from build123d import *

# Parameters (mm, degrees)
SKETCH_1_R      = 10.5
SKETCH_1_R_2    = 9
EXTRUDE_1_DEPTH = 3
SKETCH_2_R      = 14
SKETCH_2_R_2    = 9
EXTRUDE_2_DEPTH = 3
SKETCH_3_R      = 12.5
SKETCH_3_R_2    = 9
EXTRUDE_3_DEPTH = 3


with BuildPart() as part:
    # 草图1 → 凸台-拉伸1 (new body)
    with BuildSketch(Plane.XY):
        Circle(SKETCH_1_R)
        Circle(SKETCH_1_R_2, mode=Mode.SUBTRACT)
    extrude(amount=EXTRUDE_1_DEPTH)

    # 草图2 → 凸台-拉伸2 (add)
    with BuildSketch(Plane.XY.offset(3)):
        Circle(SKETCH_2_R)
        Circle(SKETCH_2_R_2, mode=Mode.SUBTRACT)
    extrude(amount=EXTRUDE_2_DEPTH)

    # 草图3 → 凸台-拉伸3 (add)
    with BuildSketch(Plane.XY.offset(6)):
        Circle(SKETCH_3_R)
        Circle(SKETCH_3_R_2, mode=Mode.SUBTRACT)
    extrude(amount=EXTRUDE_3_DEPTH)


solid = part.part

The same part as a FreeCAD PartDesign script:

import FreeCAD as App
import Part
import Sketcher

doc = App.newDocument("Part")
body = doc.addObject("PartDesign::Body", "Body")

# Sketch on XY plane
sketch1 = body.newObject("Sketcher::SketchObject", "Sketch")
sketch1.AttachmentSupport = (doc.getObject("XY_Plane"), [""])
sketch1.MapMode = "FlatFace"
sketch1.addGeometry(Part.Circle(App.Vector(0, 0, 0), App.Vector(0, 0, 1), 10), False)
sketch1.addGeometry(Part.Circle(App.Vector(0, 0, 0), App.Vector(0, 0, 1), 9), False)
sketch1.addConstraint(Sketcher.Constraint("Coincident", 0, 3, -1, 1))
sketch1.addConstraint(Sketcher.Constraint("Coincident", 1, 3, -1, 1))
sketch1.addConstraint(Sketcher.Constraint("Diameter", 0, 21.0))
sketch1.addConstraint(Sketcher.Constraint("Diameter", 1, 18.0))
pad1 = body.newObject("PartDesign::Pad", "Pad")
pad1.Profile = sketch1
pad1.Length = 3

# Sketch on XY plane
sketch2 = body.newObject("Sketcher::SketchObject", "Sketch001")
sketch2.AttachmentSupport = (doc.getObject("XY_Plane"), [""])
sketch2.MapMode = "FlatFace"
sketch2.AttachmentOffset = App.Placement(App.Vector(0, 0, 3), App.Rotation())
sketch2.addGeometry(Part.Circle(App.Vector(0, 0, 0), App.Vector(0, 0, 1), 14), False)
sketch2.addGeometry(Part.Circle(App.Vector(0, 0, 0), App.Vector(0, 0, 1), 9), False)
sketch2.addConstraint(Sketcher.Constraint("Coincident", 0, 3, -1, 1))
sketch2.addConstraint(Sketcher.Constraint("Coincident", 1, 3, -1, 1))
sketch2.addConstraint(Sketcher.Constraint("Diameter", 0, 28.0))
sketch2.addConstraint(Sketcher.Constraint("Diameter", 1, 18.0))
pad2 = body.newObject("PartDesign::Pad", "Pad001")
pad2.Profile = sketch2
pad2.Length = 3

# Sketch on XY plane
sketch3 = body.newObject("Sketcher::SketchObject", "Sketch002")
sketch3.AttachmentSupport = (doc.getObject("XY_Plane"), [""])
sketch3.MapMode = "FlatFace"
sketch3.AttachmentOffset = App.Placement(App.Vector(0, 0, 6), App.Rotation())
sketch3.addGeometry(Part.Circle(App.Vector(0, 0, 0), App.Vector(0, 0, 1), 12), False)
sketch3.addGeometry(Part.Circle(App.Vector(0, 0, 0), App.Vector(0, 0, 1), 9), False)
sketch3.addConstraint(Sketcher.Constraint("Coincident", 0, 3, -1, 1))
sketch3.addConstraint(Sketcher.Constraint("Coincident", 1, 3, -1, 1))
sketch3.addConstraint(Sketcher.Constraint("Diameter", 0, 25.0))
sketch3.addConstraint(Sketcher.Constraint("Diameter", 1, 18.0))
pad3 = body.newObject("PartDesign::Pad", "Pad002")
pad3.Profile = sketch3
pad3.Length = 3

doc.recompute()
